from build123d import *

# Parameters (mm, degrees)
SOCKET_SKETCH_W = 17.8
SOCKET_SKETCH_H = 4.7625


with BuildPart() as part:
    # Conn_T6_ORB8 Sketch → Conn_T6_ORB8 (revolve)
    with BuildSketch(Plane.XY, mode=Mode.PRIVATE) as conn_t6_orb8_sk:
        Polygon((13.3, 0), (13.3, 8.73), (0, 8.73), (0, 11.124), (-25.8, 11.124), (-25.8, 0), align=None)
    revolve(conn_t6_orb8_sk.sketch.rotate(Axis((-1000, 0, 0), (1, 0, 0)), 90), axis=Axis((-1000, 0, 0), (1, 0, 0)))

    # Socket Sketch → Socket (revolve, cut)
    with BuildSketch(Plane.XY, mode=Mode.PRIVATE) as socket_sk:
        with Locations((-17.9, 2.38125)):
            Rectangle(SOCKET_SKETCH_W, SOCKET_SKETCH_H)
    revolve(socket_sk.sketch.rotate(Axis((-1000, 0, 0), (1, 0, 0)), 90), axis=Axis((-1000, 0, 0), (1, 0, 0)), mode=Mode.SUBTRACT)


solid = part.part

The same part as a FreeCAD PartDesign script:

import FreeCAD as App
import Part
import Sketcher
Q = App.Units.Quantity


def add_polygon(sketch, points):
    """Adds a closed chain of lines whose ends are joined by coincident constraints."""
    first, n = sketch.GeometryCount, len(points)
    for a, b in zip(points, points[1:] + points[:1]):
        sketch.addGeometry(Part.LineSegment(App.Vector(*a, 0), App.Vector(*b, 0)), False)
    for i in range(n):
        sketch.addConstraint(Sketcher.Constraint("Coincident", first + i, 2, first + (i + 1) % n, 1))

doc = App.newDocument("Part")
body = doc.addObject("PartDesign::Body", "Body")

# Sketch on XY plane
sketch1 = doc.addObject("Sketcher::SketchObject", "Sketch")
body.addObject(sketch1)
sketch1.AttachmentSupport = (doc.XY_Plane, [""])
sketch1.MapMode = "FlatFace"
add_polygon(sketch1, [(13.3, 0), (13.3, 8.7), (0, 8.7), (0, 11.1), (-25.8, 11.1), (-25.8, 0)])  # lines 0-5
sketch1.addConstraint([
    Sketcher.Constraint("Vertical", 0),
    Sketcher.Constraint("Horizontal", 1),
    Sketcher.Constraint("Vertical", 2),
    Sketcher.Constraint("Horizontal", 3),
    Sketcher.Constraint("Vertical", 4),
    Sketcher.Constraint("Horizontal", 5),
    Sketcher.Constraint("PointOnObject", 1, 2, -2),
    Sketcher.Constraint("PointOnObject", 4, 2, -1),
    Sketcher.Constraint("DistanceX", 1, 2, 1, 1, Q("13.3 mm")),
    Sketcher.Constraint("DistanceX", 3, 2, 3, 1, Q("25.8 mm")),
    Sketcher.Constraint("DistanceY", 0, 1, 0, 2, Q("8.73 mm")),
    Sketcher.Constraint("DistanceY", 2, 1, 2, 2, Q("2.394 mm")),
])
revolution = doc.addObject("PartDesign::Revolution", "Revolution")
body.addObject(revolution)
revolution.Profile = sketch1
revolution.ReferenceAxis = (sketch1, ["H_Axis"])
revolution.Angle = 360

# Sketch on XY plane
sketch2 = doc.addObject("Sketcher::SketchObject", "Sketch001")
body.addObject(sketch2)
sketch2.AttachmentSupport = (doc.XY_Plane, [""])
sketch2.MapMode = "FlatFace"
add_polygon(sketch2, [(-26.8, 4.8), (-26.8, 0), (-9, 0), (-9, 4.8)])  # lines 0-3
sketch2.addConstraint([
    Sketcher.Constraint("Vertical", 0),
    Sketcher.Constraint("Horizontal", 1),
    Sketcher.Constraint("Vertical", 2),
    Sketcher.Constraint("Horizontal", 3),
    Sketcher.Constraint("PointOnObject", 0, 2, -1),
    Sketcher.Constraint("DistanceX", 1, 1, 1, 2, Q("17.8 mm")),
    Sketcher.Constraint("DistanceX", 1, 2, -1, 1, Q("9 mm")),
    Sketcher.Constraint("DistanceY", 0, 2, 0, 1, Q("4.7625 mm")),
])
groove = doc.addObject("PartDesign::Groove", "Groove")
body.addObject(groove)
groove.Profile = sketch2
groove.ReferenceAxis = (sketch2, ["H_Axis"])
groove.Angle = 360

doc.recompute()
